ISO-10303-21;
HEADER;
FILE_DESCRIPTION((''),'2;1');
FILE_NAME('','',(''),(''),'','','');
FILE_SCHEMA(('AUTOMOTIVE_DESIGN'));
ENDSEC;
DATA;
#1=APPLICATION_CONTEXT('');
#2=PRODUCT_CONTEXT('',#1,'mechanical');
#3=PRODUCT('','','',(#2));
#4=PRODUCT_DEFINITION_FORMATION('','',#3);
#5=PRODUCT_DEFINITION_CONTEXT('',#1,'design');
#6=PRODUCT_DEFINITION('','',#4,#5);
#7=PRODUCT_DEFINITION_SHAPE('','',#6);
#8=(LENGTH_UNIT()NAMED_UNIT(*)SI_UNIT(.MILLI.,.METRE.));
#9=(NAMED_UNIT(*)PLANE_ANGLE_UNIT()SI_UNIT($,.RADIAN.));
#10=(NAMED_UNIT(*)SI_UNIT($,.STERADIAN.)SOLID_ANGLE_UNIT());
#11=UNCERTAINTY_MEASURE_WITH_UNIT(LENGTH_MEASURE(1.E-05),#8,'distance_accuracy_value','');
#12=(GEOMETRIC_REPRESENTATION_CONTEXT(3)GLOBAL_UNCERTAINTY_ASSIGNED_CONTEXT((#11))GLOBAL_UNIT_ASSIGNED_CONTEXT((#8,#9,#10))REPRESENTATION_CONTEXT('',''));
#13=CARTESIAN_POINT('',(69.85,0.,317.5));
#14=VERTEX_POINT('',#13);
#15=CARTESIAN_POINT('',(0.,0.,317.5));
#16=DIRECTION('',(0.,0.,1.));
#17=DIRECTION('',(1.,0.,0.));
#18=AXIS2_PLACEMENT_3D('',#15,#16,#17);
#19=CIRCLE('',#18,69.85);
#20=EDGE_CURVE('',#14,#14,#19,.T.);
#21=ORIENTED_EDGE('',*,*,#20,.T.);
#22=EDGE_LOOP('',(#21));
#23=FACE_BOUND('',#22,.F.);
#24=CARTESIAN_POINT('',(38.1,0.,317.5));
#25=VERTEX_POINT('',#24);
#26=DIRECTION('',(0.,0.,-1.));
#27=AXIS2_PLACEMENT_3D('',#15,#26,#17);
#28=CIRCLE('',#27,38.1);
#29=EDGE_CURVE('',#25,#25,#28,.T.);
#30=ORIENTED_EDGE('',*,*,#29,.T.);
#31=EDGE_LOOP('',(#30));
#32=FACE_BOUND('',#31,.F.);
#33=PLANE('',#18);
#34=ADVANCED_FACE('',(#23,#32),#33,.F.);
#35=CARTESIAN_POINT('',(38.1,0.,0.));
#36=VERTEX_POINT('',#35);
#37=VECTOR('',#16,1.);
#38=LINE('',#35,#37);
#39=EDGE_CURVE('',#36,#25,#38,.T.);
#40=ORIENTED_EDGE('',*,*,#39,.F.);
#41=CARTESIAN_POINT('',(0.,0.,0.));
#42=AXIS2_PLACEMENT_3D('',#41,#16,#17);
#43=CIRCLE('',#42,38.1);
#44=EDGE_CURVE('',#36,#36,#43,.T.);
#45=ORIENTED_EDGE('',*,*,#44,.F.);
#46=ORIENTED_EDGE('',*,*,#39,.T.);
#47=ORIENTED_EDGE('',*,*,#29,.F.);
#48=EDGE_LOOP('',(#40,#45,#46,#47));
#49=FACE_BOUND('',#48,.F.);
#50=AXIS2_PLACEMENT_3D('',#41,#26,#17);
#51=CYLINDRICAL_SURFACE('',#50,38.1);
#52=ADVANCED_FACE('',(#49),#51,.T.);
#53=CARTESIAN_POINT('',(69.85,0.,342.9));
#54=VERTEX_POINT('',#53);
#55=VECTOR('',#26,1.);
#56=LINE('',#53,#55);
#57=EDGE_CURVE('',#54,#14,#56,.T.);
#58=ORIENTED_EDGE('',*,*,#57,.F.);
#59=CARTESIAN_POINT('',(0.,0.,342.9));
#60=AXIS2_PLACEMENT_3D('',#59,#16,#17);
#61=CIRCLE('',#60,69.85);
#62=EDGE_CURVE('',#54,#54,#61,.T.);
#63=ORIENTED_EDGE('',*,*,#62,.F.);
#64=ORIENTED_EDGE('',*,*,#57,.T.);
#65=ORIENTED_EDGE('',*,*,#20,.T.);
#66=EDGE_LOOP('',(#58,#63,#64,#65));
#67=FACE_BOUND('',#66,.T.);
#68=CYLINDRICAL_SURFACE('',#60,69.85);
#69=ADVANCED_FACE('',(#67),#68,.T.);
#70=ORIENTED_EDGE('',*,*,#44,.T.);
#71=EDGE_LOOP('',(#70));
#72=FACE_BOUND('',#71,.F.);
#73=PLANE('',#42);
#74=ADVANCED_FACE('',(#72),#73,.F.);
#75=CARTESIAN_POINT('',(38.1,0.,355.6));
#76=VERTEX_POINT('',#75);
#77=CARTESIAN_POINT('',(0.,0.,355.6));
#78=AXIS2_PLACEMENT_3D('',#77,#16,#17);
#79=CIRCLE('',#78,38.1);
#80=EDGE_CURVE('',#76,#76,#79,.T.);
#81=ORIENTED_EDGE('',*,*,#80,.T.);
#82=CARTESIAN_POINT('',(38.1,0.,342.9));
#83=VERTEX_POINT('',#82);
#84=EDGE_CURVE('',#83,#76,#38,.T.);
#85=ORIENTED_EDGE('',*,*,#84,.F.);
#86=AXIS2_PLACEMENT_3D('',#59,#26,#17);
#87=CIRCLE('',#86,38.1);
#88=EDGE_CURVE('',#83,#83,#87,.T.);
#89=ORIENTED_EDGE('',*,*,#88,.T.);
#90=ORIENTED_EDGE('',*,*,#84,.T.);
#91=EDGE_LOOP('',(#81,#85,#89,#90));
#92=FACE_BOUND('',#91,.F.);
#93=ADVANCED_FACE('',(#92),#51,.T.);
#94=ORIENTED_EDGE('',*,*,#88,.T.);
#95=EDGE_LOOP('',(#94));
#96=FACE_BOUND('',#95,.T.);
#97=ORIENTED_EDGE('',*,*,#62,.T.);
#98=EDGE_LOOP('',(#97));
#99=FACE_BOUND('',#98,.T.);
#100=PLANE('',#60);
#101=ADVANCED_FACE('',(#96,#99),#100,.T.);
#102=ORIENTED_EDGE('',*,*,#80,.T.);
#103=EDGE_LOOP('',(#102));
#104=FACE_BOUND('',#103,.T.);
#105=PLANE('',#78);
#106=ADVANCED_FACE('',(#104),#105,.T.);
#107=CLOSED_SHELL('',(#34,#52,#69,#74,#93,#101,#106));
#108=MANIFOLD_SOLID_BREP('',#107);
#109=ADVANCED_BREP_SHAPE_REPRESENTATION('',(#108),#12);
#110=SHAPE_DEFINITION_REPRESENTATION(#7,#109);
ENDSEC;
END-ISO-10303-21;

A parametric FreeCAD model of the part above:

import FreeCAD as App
import Part
import Sketcher

V = App.Vector
Q = App.Units.Quantity

doc = App.newDocument("Part")
body = doc.addObject("PartDesign::Body", "Body")

# Sketch on XY plane
sketch1 = body.newObject("Sketcher::SketchObject", "Sketch")
sketch1.AttachmentSupport = (doc.getObject("XY_Plane"), [""])
sketch1.MapMode = "FlatFace"
sketch1.addGeometry(Part.Circle(V(0, 0, 0), V(0, 0, 1), 38), False)
sketch1.addConstraint([
    Sketcher.Constraint("Coincident", 0, 3, -1, 1),
    Sketcher.Constraint("Diameter", 0, Q("3 in")),
])
pad1 = body.newObject("PartDesign::Pad", "Pad")
pad1.Profile = sketch1
pad1.Length = Q("14 in")

# Sketch on XY plane
sketch2 = body.newObject("Sketcher::SketchObject", "Sketch001")
sketch2.AttachmentSupport = (doc.getObject("XY_Plane"), [""])
sketch2.MapMode = "FlatFace"
sketch2.AttachmentOffset = App.Placement(V(0, 0, 13.5 * 25.4), App.Rotation())
sketch2.addGeometry(Part.Circle(V(0, 0, 0), V(0, 0, 1), 70), False)
sketch2.addConstraint([
    Sketcher.Constraint("Coincident", 0, 3, -1, 1),
    Sketcher.Constraint("Diameter", 0, Q("5.5 in")),
])
pad2 = body.newObject("PartDesign::Pad", "Pad001")
pad2.Profile = sketch2
pad2.Length = Q("1 in")
pad2.Reversed = True

doc.recompute()
